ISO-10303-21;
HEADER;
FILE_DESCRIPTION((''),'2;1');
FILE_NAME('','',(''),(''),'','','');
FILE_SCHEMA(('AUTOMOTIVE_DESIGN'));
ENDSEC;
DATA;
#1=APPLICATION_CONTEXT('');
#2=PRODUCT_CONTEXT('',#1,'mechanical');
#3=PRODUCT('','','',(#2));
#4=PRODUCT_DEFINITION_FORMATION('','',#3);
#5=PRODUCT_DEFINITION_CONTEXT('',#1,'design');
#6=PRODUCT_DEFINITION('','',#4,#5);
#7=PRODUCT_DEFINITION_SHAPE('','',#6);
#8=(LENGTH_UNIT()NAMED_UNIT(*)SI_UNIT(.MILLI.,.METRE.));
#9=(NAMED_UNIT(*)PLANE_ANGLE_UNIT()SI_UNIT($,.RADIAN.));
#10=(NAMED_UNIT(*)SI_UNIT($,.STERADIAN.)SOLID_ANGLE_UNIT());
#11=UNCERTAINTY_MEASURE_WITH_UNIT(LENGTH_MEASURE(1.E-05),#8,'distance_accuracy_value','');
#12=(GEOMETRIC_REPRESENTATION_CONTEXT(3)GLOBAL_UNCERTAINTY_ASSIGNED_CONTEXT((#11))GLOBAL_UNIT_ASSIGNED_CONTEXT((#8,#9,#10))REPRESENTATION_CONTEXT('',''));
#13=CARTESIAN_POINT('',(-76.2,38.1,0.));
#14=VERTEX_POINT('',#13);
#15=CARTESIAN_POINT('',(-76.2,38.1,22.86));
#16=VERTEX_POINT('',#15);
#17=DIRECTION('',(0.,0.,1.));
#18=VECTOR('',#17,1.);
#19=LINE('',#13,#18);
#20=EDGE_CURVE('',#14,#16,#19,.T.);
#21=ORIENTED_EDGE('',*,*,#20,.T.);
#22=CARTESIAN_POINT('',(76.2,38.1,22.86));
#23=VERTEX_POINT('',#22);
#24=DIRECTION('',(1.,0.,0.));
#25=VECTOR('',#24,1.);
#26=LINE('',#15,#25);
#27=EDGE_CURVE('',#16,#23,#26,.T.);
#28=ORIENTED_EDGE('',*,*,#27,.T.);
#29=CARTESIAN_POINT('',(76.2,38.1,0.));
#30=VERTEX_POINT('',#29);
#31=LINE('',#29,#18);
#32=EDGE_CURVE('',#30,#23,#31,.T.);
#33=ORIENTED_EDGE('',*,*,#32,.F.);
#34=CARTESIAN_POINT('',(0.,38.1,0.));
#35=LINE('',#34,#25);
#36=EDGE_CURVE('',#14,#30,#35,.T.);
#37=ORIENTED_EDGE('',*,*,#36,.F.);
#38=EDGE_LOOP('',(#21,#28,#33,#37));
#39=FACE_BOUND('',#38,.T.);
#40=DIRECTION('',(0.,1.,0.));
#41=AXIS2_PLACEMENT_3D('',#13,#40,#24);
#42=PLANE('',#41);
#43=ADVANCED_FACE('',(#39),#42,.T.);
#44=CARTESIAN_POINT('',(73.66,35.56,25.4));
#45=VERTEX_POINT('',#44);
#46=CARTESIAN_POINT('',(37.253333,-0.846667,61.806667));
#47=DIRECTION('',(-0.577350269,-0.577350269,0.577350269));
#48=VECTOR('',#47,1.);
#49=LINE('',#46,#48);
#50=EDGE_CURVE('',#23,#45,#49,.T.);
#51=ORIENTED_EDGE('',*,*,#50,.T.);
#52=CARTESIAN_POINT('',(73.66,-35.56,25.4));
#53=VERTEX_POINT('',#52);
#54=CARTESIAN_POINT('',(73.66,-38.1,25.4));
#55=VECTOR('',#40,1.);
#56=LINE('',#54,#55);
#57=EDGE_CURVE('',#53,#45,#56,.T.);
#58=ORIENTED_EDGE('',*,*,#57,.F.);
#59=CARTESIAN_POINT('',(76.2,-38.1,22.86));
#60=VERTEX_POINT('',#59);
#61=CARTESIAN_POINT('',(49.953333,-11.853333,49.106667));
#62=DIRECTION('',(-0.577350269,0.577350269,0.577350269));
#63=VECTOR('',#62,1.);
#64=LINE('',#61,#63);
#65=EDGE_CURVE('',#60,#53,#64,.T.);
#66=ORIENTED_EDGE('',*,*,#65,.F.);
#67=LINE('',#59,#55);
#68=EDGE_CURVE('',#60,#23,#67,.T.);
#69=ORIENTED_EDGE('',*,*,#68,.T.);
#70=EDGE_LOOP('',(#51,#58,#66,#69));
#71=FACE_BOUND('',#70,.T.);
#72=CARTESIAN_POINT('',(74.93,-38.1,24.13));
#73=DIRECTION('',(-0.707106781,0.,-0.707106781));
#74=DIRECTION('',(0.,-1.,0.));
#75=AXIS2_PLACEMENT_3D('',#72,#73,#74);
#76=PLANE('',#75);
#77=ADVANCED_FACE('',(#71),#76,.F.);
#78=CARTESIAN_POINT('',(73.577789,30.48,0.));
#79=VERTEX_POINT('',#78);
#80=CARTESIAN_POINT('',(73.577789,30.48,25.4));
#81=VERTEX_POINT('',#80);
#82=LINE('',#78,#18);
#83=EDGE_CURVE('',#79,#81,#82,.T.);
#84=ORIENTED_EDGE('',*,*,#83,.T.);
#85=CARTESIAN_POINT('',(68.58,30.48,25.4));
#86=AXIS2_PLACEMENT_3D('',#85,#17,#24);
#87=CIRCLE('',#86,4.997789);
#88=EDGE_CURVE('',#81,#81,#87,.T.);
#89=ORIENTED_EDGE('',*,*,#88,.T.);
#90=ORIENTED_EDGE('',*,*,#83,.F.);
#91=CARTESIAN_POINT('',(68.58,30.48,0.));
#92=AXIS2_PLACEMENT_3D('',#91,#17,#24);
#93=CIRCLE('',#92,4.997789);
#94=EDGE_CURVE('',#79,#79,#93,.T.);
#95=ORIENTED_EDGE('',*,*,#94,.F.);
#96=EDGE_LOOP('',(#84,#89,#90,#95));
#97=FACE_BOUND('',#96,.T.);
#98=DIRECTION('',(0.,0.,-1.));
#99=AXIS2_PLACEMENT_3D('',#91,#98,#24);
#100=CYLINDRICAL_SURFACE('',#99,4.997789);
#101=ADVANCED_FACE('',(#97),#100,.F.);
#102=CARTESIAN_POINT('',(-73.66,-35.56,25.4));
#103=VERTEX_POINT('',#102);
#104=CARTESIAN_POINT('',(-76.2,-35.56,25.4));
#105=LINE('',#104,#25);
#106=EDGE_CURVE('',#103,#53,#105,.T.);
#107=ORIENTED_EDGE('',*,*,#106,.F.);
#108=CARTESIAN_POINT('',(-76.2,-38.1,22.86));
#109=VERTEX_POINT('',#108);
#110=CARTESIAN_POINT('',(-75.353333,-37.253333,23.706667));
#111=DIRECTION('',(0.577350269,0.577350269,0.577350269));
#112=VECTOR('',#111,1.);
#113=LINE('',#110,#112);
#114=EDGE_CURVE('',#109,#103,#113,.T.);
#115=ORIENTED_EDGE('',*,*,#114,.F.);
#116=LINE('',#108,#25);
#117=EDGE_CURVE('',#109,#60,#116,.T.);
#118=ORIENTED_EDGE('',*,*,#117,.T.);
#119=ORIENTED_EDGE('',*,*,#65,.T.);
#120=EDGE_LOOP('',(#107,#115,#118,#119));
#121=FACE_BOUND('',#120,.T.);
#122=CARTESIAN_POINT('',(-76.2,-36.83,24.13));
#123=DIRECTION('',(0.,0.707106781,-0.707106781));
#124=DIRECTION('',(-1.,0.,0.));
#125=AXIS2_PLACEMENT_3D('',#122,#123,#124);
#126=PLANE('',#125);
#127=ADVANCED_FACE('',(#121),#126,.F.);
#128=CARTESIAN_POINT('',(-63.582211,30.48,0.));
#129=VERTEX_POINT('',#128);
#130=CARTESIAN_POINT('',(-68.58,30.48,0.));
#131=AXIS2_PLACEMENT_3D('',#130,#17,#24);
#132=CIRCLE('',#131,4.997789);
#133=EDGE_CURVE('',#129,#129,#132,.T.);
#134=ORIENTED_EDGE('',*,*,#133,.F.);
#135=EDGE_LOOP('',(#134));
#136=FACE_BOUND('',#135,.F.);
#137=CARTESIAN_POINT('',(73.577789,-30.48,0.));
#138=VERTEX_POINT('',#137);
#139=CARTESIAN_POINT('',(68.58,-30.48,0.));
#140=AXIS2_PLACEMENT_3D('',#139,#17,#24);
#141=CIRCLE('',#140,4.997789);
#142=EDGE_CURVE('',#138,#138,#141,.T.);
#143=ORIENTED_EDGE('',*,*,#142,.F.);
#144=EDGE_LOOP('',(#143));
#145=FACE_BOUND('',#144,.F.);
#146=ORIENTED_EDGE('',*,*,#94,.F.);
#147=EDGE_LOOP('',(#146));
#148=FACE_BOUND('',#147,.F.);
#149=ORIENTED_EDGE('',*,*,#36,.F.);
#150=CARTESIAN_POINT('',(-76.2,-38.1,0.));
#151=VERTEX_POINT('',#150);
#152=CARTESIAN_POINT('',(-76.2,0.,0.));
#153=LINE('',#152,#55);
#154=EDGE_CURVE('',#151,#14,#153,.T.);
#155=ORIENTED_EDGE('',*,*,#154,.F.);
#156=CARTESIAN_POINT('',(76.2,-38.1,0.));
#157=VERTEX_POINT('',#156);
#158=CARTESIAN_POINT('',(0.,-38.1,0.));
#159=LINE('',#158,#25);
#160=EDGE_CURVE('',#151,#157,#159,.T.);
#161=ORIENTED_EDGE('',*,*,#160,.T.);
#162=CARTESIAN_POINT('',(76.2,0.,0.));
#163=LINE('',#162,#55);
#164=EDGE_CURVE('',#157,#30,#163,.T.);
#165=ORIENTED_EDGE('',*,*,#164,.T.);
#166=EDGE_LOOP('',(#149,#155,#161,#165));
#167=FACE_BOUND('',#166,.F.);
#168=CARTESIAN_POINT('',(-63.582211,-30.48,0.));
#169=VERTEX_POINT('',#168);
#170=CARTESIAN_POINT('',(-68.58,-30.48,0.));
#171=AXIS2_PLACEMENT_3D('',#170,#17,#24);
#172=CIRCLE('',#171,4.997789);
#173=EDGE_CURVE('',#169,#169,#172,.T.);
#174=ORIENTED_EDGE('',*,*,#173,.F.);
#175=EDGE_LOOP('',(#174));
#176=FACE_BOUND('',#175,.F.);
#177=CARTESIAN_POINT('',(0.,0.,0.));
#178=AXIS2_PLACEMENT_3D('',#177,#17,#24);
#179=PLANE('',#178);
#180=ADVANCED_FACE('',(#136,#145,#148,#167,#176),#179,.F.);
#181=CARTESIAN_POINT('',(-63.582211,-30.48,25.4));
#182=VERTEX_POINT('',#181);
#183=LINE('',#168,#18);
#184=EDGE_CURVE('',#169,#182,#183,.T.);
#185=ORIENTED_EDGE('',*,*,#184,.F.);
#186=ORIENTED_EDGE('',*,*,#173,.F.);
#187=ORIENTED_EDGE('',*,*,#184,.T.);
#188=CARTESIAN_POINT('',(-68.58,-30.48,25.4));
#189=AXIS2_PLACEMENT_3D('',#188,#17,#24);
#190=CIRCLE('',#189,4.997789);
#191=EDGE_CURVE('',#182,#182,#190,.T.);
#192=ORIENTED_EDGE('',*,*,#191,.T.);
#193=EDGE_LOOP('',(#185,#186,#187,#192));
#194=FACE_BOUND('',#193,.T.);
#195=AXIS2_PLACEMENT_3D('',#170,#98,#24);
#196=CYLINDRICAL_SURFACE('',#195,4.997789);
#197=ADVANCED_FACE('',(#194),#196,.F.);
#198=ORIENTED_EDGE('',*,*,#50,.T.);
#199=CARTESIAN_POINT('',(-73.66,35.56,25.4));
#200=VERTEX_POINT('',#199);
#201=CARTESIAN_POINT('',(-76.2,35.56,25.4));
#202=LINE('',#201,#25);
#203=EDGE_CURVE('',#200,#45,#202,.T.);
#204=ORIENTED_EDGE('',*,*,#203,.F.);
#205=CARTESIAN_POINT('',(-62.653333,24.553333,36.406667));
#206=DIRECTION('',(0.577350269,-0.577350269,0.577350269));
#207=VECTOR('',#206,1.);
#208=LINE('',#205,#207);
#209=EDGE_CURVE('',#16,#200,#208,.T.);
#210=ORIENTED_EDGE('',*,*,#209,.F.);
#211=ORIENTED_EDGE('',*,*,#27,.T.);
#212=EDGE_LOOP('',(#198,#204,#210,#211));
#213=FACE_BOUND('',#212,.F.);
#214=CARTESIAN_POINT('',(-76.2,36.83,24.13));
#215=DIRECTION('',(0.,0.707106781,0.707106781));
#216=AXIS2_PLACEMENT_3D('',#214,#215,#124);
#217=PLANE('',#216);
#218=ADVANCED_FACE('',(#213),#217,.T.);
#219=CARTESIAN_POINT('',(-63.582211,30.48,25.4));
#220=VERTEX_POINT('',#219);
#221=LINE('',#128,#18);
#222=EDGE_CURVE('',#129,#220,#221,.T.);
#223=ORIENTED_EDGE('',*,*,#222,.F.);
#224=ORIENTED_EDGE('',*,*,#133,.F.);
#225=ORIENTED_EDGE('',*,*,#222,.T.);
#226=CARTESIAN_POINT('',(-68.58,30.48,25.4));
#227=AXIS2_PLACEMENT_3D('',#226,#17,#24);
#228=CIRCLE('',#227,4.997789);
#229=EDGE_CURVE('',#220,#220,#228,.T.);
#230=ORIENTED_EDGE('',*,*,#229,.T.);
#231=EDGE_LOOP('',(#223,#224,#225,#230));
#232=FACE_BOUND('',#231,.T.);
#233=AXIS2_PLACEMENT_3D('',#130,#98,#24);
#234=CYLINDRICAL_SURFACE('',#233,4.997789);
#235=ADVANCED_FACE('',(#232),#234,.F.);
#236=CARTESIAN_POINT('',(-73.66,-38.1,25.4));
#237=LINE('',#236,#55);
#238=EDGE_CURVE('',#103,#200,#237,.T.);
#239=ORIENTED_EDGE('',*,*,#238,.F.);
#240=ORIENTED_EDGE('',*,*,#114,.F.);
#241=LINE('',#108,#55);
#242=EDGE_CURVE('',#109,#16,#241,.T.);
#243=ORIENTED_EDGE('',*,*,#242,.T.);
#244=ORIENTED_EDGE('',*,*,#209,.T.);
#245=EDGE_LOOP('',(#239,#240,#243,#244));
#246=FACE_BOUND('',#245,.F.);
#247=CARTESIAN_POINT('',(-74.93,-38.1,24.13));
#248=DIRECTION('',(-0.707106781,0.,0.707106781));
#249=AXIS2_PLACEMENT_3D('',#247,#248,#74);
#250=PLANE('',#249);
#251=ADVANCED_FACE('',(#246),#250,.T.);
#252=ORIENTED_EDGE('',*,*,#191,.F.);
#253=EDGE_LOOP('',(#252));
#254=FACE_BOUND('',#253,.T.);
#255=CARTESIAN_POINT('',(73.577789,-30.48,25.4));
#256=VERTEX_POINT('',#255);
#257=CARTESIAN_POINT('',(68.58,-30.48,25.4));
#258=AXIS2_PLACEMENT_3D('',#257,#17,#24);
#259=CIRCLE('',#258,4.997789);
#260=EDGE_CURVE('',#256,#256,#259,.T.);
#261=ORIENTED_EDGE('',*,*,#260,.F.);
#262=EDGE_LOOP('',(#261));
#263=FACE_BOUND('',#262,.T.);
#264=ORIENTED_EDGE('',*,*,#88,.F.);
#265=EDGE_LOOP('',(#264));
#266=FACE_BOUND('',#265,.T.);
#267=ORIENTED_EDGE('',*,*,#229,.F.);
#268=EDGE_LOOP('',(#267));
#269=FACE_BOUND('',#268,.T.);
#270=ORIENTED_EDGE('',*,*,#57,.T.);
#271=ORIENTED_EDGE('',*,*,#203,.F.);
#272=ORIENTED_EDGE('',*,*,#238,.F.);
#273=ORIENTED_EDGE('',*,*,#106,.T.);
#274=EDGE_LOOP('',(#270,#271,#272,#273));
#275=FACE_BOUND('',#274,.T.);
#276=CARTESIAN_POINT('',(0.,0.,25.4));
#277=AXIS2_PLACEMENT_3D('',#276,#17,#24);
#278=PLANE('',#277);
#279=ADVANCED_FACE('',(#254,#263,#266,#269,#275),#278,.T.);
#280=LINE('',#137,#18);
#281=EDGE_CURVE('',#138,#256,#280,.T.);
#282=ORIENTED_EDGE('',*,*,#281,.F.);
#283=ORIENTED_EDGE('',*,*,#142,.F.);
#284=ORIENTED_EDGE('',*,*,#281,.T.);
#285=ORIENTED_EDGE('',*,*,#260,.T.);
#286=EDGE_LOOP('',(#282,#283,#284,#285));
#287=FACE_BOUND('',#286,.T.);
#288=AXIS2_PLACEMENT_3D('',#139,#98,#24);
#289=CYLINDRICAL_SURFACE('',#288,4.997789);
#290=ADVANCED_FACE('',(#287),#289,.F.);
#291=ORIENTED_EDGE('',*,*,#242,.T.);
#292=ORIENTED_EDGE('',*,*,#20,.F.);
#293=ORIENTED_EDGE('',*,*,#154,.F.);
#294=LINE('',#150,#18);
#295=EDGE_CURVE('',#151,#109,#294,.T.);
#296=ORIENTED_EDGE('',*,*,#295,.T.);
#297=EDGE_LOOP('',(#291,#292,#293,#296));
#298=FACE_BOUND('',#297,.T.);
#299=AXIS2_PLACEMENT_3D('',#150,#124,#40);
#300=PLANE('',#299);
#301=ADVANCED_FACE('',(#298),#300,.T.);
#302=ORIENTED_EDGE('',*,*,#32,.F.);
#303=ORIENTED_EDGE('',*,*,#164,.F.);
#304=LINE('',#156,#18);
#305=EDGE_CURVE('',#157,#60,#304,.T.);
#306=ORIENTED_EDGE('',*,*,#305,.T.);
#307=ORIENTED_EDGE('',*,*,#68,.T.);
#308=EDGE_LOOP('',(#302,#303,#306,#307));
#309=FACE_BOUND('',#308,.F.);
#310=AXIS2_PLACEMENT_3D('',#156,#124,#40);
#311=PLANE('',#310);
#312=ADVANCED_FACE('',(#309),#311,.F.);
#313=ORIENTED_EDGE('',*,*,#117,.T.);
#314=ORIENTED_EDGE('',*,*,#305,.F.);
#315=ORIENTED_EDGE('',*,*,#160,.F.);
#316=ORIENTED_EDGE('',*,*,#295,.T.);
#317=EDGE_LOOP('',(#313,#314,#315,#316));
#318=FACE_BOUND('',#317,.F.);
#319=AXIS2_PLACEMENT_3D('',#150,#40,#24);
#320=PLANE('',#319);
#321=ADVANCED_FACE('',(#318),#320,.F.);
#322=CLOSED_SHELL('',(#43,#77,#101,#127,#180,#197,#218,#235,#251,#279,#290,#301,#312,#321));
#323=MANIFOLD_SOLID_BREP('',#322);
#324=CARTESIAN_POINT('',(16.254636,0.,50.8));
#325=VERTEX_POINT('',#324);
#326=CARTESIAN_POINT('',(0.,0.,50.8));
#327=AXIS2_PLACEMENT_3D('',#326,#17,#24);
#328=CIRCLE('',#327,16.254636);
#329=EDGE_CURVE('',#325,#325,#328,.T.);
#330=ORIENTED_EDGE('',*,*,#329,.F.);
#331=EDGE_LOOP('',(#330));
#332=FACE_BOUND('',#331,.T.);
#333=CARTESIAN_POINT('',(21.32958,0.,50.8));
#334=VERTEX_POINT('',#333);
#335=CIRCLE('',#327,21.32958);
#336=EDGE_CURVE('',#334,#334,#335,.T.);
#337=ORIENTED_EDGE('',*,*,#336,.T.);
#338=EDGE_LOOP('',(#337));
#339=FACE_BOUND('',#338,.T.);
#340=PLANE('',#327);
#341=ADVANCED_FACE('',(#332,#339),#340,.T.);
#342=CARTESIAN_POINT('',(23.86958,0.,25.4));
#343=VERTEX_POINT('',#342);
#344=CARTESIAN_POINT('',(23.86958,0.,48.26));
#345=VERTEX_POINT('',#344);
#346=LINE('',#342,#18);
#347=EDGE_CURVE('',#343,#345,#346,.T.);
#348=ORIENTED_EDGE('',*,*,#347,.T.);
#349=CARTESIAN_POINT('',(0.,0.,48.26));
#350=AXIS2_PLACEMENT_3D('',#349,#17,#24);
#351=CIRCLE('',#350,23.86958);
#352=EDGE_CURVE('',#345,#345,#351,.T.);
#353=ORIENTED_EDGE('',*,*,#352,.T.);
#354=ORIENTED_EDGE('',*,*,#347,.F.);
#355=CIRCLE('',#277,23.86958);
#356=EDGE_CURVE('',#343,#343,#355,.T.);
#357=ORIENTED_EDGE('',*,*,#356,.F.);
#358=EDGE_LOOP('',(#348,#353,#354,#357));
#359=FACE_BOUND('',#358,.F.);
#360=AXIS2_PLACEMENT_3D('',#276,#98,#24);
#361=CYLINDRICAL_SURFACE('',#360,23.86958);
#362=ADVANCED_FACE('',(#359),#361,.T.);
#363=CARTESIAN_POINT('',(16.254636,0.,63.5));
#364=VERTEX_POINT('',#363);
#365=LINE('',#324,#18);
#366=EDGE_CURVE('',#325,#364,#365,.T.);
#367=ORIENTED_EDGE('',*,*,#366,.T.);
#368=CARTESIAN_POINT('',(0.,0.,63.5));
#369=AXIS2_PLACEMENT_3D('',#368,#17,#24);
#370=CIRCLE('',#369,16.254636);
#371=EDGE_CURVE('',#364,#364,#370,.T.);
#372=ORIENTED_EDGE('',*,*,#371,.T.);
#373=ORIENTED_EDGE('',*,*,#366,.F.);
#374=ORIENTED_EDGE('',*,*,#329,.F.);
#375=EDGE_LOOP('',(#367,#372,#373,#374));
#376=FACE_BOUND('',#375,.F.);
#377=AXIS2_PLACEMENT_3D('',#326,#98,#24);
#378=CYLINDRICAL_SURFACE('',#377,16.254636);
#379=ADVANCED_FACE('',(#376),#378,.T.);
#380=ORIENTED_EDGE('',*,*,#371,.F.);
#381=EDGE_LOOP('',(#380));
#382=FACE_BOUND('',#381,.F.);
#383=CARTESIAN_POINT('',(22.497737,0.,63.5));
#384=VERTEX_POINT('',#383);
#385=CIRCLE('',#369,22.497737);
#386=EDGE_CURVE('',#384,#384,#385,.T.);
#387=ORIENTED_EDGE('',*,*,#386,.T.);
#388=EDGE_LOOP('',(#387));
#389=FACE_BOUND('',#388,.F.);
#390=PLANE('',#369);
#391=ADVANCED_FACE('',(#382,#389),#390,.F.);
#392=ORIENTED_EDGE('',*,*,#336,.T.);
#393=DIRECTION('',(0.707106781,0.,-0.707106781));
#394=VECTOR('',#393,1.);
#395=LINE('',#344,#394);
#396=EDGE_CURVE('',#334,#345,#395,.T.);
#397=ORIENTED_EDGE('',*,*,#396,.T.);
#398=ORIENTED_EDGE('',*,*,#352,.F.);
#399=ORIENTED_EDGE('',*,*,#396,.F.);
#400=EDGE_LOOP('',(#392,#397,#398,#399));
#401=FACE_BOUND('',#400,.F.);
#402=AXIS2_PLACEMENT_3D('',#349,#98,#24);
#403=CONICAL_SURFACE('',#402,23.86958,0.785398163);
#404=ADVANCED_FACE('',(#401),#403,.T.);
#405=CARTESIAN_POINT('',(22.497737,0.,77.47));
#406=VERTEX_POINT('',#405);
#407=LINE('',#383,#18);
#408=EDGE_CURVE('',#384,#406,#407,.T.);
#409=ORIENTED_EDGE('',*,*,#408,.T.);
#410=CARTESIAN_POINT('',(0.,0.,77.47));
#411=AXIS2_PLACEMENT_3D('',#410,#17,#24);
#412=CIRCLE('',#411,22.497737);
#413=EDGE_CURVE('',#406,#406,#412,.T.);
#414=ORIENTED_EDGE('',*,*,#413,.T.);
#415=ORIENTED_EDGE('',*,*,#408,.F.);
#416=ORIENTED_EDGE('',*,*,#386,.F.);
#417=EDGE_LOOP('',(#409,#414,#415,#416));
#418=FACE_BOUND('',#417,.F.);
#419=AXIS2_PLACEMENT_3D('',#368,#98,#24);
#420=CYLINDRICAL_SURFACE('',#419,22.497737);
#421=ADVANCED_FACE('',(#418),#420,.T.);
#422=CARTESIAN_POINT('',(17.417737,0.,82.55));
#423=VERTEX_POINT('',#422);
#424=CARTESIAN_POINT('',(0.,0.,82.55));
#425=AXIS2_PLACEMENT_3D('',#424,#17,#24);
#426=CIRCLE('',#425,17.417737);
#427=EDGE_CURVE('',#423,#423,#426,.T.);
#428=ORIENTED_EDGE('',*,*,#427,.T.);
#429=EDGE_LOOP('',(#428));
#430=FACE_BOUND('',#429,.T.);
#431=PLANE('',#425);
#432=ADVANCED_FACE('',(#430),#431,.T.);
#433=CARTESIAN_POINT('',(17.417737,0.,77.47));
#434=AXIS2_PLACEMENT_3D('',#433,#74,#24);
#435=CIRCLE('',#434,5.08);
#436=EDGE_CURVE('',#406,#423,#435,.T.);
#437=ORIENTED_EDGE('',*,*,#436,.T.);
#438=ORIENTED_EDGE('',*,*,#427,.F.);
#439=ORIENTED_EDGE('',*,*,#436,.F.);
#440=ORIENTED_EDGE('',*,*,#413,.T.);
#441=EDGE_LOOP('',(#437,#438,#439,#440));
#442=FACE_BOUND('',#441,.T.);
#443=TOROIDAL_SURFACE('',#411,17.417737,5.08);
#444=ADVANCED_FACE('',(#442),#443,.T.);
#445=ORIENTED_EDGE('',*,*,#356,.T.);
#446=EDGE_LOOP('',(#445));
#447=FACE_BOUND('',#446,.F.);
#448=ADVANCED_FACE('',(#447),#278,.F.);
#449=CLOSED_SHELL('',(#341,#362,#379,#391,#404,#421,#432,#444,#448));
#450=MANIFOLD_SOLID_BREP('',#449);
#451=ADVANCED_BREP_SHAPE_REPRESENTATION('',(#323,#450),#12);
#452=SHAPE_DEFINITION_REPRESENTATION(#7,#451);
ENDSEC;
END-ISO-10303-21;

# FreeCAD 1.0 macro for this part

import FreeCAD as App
import Part
import Sketcher
Q = App.Units.Quantity


def edges_at(feature, points):
    """Names of the edges that pass closest to the given points."""
    edges = feature.Shape.Edges
    near = lambda p: min(range(len(edges)), key=lambda i: edges[i].distToShape(Part.Vertex(*p))[0])
    return sorted({f"Edge{near(p) + 1}" for p in points})

doc = App.newDocument("Part")
params = doc.addObject("Spreadsheet::Sheet", "Params")
for row, (alias, value) in enumerate([
    ("sketch1_width", "6 in"),
    ("sketch1_height", "3 in"),
    ("pad1_length", "1 in"),
    ("chamfer_size", "0.1 in"),
    ("pad2_length", "1 in"),
    ("pad3_length", "0.5 in"),
    ("pad4_length", "0.75 in"),
    ("chamfer2_size", "0.1 in"),
    ("fillet_radius", "0.2 in"),
], start=1):
    params.set(f"A{row}", alias)
    params.set(f"B{row}", "=" + value)
    params.setAlias(f"B{row}", alias)

body = doc.addObject("PartDesign::Body", "Body")

sketch1 = body.newObject("Sketcher::SketchObject", "Sketch")
sketch1.AttachmentSupport = (doc.getObject("XY_Plane"), [""])
sketch1.MapMode = "FlatFace"
sketch1.addGeometry([
    Part.LineSegment(App.Vector(-76.2, 38.1, 0), App.Vector(-76.2, -38.1, 0)),
    Part.LineSegment(App.Vector(-76.2, -38.1, 0), App.Vector(76.2, -38.1, 0)),
    Part.LineSegment(App.Vector(76.2, -38.1, 0), App.Vector(76.2, 38.1, 0)),
    Part.LineSegment(App.Vector(76.2, 38.1, 0), App.Vector(-76.2, 38.1, 0)),
    Part.Circle(App.Vector(-68.6, -30.5, 0), App.Vector(0, 0, 1), 5),
    Part.Circle(App.Vector(68.6, -30.5, 0), App.Vector(0, 0, 1), 5),
    Part.Circle(App.Vector(-68.6, 30.5, 0), App.Vector(0, 0, 1), 5),
    Part.Circle(App.Vector(68.6, 30.5, 0), App.Vector(0, 0, 1), 5),
], False)
sketch1.addConstraint([
    Sketcher.Constraint("Coincident", 0, 2, 1, 1),
    Sketcher.Constraint("Coincident", 1, 2, 2, 1),
    Sketcher.Constraint("Coincident", 2, 2, 3, 1),
    Sketcher.Constraint("Coincident", 3, 2, 0, 1),
    Sketcher.Constraint("Vertical", 0),
    Sketcher.Constraint("Horizontal", 1),
    Sketcher.Constraint("Vertical", 2),
    Sketcher.Constraint("Horizontal", 3),
    Sketcher.Constraint("Equal", 4, 5),
    Sketcher.Constraint("Equal", 5, 6),
    Sketcher.Constraint("Equal", 6, 7),
    Sketcher.Constraint("Symmetric", 5, 3, 6, 3, -1, 1),
    Sketcher.Constraint("Symmetric", 4, 3, 7, 3, -1, 1),
    Sketcher.Constraint("Symmetric", 0, 2, 2, 2, -1, 1),
    Sketcher.Constraint("Symmetric", 4, 3, 5, 3, -2),
    Sketcher.Constraint("DistanceX", 1, 1, 1, 2, Q("6 in")),
    Sketcher.Constraint("DistanceY", 0, 2, 0, 1, Q("3 in")),
    Sketcher.Constraint("DistanceX", 4, 3, -1, 1, Q("2.7 in")),
    Sketcher.Constraint("DistanceY", 4, 3, -1, 1, Q("1.2 in")),
    Sketcher.Constraint("Diameter", 4, Q("9.995578 mm")),
])
sketch1.setExpression("Constraints[15]", "Params.sketch1_width")
sketch1.setExpression("Constraints[16]", "Params.sketch1_height")
pad1 = body.newObject("PartDesign::Pad", "Pad")
pad1.Profile = sketch1
pad1.setExpression("Length", "Params.pad1_length")
doc.recompute()

chamfer = body.newObject("PartDesign::Chamfer", "Chamfer")
chamfer.Base = (pad1, edges_at(pad1, [
    (0, -38.1, 25.4),
    (76.2, 0, 25.4),
    (-76.2, 0, 25.4),
    (0, 38.1, 25.4),
]))
chamfer.setExpression("Size", "Params.chamfer_size")
body2 = doc.addObject("PartDesign::Body", "Body001")

sketch2 = body2.newObject("Sketcher::SketchObject", "Sketch001")
sketch2.AttachmentSupport = (doc.getObject("XY_Plane001"), [""])
sketch2.MapMode = "FlatFace"
sketch2.AttachmentOffset = App.Placement(App.Vector(0, 0, 1 * 25.4), App.Rotation())
sketch2.addGeometry(Part.Circle(App.Vector(0, 0, 0), App.Vector(0, 0, 1), 24), False)
sketch2.addConstraint([
    Sketcher.Constraint("Coincident", 0, 3, -1, 1),
    Sketcher.Constraint("Diameter", 0, Q("47.73916 mm")),
])
pad2 = body2.newObject("PartDesign::Pad", "Pad001")
pad2.Profile = sketch2
pad2.setExpression("Length", "Params.pad2_length")

sketch3 = body2.newObject("Sketcher::SketchObject", "Sketch002")
sketch3.AttachmentSupport = (doc.getObject("XY_Plane001"), [""])
sketch3.MapMode = "FlatFace"
sketch3.AttachmentOffset = App.Placement(App.Vector(0, 0, 2 * 25.4), App.Rotation())
sketch3.addGeometry(Part.Circle(App.Vector(0, 0, 0), App.Vector(0, 0, 1), 16), False)
sketch3.addConstraint([
    Sketcher.Constraint("Coincident", 0, 3, -1, 1),
    Sketcher.Constraint("Diameter", 0, Q("32.509272 mm")),
])
pad3 = body2.newObject("PartDesign::Pad", "Pad002")
pad3.Profile = sketch3
pad3.setExpression("Length", "Params.pad3_length")

sketch4 = body2.newObject("Sketcher::SketchObject", "Sketch003")
sketch4.AttachmentSupport = (doc.getObject("XY_Plane001"), [""])
sketch4.MapMode = "FlatFace"
sketch4.AttachmentOffset = App.Placement(App.Vector(0, 0, 2.5 * 25.4), App.Rotation())
sketch4.addGeometry(Part.Circle(App.Vector(0, 0, 0), App.Vector(0, 0, 1), 22), False)
sketch4.addConstraint([
    Sketcher.Constraint("Coincident", 0, 3, -1, 1),
    Sketcher.Constraint("Diameter", 0, Q("44.995474 mm")),
])
pad4 = body2.newObject("PartDesign::Pad", "Pad003")
pad4.Profile = sketch4
pad4.setExpression("Length", "Params.pad4_length")
doc.recompute()

chamfer2 = body2.newObject("PartDesign::Chamfer", "Chamfer001")
chamfer2.Base = (pad4, edges_at(pad4, [(-23.87, 0, 50.8)]))
chamfer2.setExpression("Size", "Params.chamfer2_size")
doc.recompute()

fillet = body2.newObject("PartDesign::Fillet", "Fillet")
fillet.Base = (chamfer2, edges_at(chamfer2, [(-22.498, 0, 82.55)]))
fillet.setExpression("Radius", "Params.fillet_radius")

doc.recompute()
